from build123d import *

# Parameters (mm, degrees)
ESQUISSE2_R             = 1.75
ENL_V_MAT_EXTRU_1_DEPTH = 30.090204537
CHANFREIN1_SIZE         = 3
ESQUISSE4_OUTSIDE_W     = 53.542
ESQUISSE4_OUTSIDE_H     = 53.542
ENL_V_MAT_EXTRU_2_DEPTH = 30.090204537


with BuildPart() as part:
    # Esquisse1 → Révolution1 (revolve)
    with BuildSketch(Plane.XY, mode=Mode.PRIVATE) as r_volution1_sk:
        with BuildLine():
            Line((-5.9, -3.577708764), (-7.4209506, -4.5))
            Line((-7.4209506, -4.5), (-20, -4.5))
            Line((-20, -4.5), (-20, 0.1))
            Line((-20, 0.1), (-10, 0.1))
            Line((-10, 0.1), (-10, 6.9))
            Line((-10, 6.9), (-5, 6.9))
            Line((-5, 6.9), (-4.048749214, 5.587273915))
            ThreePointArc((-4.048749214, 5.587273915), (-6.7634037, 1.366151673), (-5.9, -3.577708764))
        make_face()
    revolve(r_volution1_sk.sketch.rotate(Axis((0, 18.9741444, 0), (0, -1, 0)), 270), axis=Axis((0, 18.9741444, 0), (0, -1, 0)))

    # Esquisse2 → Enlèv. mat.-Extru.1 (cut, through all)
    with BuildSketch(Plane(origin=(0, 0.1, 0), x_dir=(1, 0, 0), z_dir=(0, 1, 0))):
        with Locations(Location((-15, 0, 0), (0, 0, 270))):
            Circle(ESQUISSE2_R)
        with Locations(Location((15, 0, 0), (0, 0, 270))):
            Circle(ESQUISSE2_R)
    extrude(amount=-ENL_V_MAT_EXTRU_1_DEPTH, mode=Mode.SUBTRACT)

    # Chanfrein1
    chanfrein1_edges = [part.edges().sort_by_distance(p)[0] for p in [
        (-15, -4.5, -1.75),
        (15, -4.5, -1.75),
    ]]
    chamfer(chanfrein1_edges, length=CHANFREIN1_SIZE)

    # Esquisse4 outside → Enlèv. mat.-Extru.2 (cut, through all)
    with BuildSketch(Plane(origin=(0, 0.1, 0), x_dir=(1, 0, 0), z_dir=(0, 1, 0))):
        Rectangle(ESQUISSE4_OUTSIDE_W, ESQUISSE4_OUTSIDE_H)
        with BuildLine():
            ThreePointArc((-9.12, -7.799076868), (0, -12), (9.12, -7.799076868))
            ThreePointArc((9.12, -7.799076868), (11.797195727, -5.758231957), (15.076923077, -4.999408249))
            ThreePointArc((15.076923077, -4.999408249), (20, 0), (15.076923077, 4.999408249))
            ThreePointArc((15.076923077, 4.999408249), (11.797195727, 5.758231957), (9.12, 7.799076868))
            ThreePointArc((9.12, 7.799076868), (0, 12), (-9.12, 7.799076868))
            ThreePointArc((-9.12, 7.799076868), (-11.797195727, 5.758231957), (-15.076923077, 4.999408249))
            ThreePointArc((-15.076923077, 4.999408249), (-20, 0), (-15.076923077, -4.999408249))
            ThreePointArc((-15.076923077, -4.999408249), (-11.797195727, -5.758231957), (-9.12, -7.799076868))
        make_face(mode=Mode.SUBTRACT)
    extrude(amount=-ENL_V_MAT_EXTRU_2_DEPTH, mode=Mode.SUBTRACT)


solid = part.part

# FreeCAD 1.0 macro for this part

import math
import FreeCAD as App
import Part
import Sketcher

V = App.Vector


def edges_at(feature, points):
    """Names of the edges that pass closest to the given points."""
    edges = feature.Shape.Edges
    near = lambda p: min(range(len(edges)), key=lambda i: edges[i].distToShape(Part.Vertex(*p))[0])
    return sorted({f"Edge{near(p) + 1}" for p in points})


def add_polygon(sketch, points):
    """Adds a closed chain of lines whose ends are joined by coincident constraints."""
    first, n = sketch.GeometryCount, len(points)
    for a, b in zip(points, points[1:] + points[:1]):
        sketch.addGeometry(Part.LineSegment(App.Vector(*a, 0), App.Vector(*b, 0)), False)
    for i in range(n):
        sketch.addConstraint(Sketcher.Constraint("Coincident", first + i, 2, first + (i + 1) % n, 1))

doc = App.newDocument("Part")
body = doc.addObject("PartDesign::Body", "Body")

# Sketch on XY plane
sketch1 = body.newObject("Sketcher::SketchObject", "Sketch")
sketch1.AttachmentSupport = (doc.getObject("XY_Plane"), [""])
sketch1.MapMode = "FlatFace"
sketch1.addGeometry([
    Part.LineSegment(V(-7.4, -4.5, 0), V(-5.9, -3.6, 0)),  # 0
    Part.ArcOfCircle(Part.Circle(V(0, 0, 0), V(0, 0, 1), 6.9), math.radians(126), math.radians(211)),  # 1
    Part.LineSegment(V(-4, 5.6, 0), V(-5, 6.9, 0)),  # 2
    Part.LineSegment(V(-5, 6.9, 0), V(-10, 6.9, 0)),  # 3
    Part.LineSegment(V(-10, 6.9, 0), V(-10, 0.1, 0)),  # 4
    Part.LineSegment(V(-10, 0.1, 0), V(-20, 0.1, 0)),  # 5
    Part.LineSegment(V(-20, 0.1, 0), V(-20, -4.5, 0)),  # 6
    Part.LineSegment(V(-20, -4.5, 0), V(-7.4, -4.5, 0)),  # 7
], False)
sketch1.addConstraint([
    Sketcher.Constraint("Coincident", 0, 2, 1, 2),
    Sketcher.Constraint("Coincident", 1, 1, 2, 1),
    Sketcher.Constraint("Coincident", 2, 2, 3, 1),
    Sketcher.Constraint("Coincident", 3, 2, 4, 1),
    Sketcher.Constraint("Coincident", 4, 2, 5, 1),
    Sketcher.Constraint("Coincident", 5, 2, 6, 1),
    Sketcher.Constraint("Coincident", 6, 2, 7, 1),
    Sketcher.Constraint("Coincident", 7, 2, 0, 1),
    Sketcher.Constraint("Horizontal", 3),
    Sketcher.Constraint("Vertical", 4),
    Sketcher.Constraint("Horizontal", 5),
    Sketcher.Constraint("Vertical", 6),
    Sketcher.Constraint("Horizontal", 7),
    Sketcher.Constraint("Coincident", 1, 3, -1, 1),
    Sketcher.Constraint("Radius", 1, 6.9),
    Sketcher.Constraint("DistanceX", 3, 2, 3, 1, 5.0),
    Sketcher.Constraint("DistanceX", 5, 2, 5, 1, 10.0),
    Sketcher.Constraint("DistanceY", 4, 2, 4, 1, 6.8),
    Sketcher.Constraint("DistanceY", 6, 2, 6, 1, 4.6),
    Sketcher.Constraint("DistanceX", 2, 2, -1, 1, 5.0),
    Sketcher.Constraint("DistanceX", 0, 2, -1, 1, 5.9),
    Sketcher.Constraint("DistanceY", -1, 1, 2, 2, 6.9),
    Sketcher.Constraint("DistanceX", 7, 1, 7, 2, 12.579049),
    Sketcher.Constraint("DistanceX", 7, 2, 1, 1, 3.372201),
])
revolution = body.newObject("PartDesign::Revolution", "Revolution")
revolution.Profile = sketch1
revolution.ReferenceAxis = (sketch1, ["V_Axis"])
revolution.Angle = 360

# Sketch on XZ plane
sketch2 = body.newObject("Sketcher::SketchObject", "Sketch001")
sketch2.AttachmentSupport = (doc.getObject("XZ_Plane"), [""])
sketch2.MapMode = "FlatFace"
sketch2.AttachmentOffset = App.Placement(V(0, 0, -0.1), App.Rotation())
sketch2.addGeometry([
    Part.Circle(V(-15, 0, 0), V(0, 0, 1), 1.8),
    Part.Circle(V(15, 0, 0), V(0, 0, 1), 1.8),
], False)
sketch2.addConstraint([
    Sketcher.Constraint("Equal", 0, 1),
    Sketcher.Constraint("Symmetric", 0, 3, 1, 3, -1, 1),
    Sketcher.Constraint("PointOnObject", 0, 3, -1),
    Sketcher.Constraint("Diameter", 0, 3.5),
    Sketcher.Constraint("DistanceX", 0, 3, -1, 1, 15.0),
])
pocket1 = body.newObject("PartDesign::Pocket", "Pocket")
pocket1.Profile = sketch2
pocket1.Type = "ThroughAll"
pocket1.Reversed = True
doc.recompute()

chamfer = body.newObject("PartDesign::Chamfer", "Chamfer")
chamfer.Base = (pocket1, edges_at(pocket1, [(-15, -4.5, -1.75), (15, -4.5, -1.75)]))
chamfer.Size = 3

# Sketch on XZ plane
sketch3 = body.newObject("Sketcher::SketchObject", "Sketch002")
sketch3.AttachmentSupport = (doc.getObject("XZ_Plane"), [""])
sketch3.MapMode = "FlatFace"
sketch3.AttachmentOffset = App.Placement(V(0, 0, -0.1), App.Rotation())
add_polygon(sketch3, [(-27, -27), (-27, 27), (27, 27), (27, -27)])  # lines 0-3
sketch3.addGeometry(Part.ArcOfCircle(Part.Circle(V(0, 0, 0), V(0, 0, 1), 12), math.radians(41), math.radians(139)), False)  # 4
sketch3.addGeometry(Part.ArcOfCircle(Part.Circle(V(-15, 13, 0), V(0, 0, 1), 8), math.radians(-89), math.radians(-41)), False)  # 5
sketch3.addGeometry(Part.ArcOfCircle(Part.Circle(V(-15, 0, 0), V(0, 0, 1), 5), math.radians(91), math.radians(269)), False)  # 6
sketch3.addGeometry(Part.ArcOfCircle(Part.Circle(V(-15, -13, 0), V(0, 0, 1), 8), math.radians(41), math.radians(89)), False)  # 7
sketch3.addGeometry(Part.ArcOfCircle(Part.Circle(V(0, 0, 0), V(0, 0, 1), 12), math.radians(-139), math.radians(-41)), False)  # 8
sketch3.addGeometry(Part.ArcOfCircle(Part.Circle(V(15, -13, 0), V(0, 0, 1), 8), math.radians(91), math.radians(139)), False)  # 9
sketch3.addGeometry(Part.ArcOfCircle(Part.Circle(V(15, 0, 0), V(0, 0, 1), 5), math.radians(-89), math.radians(89)), False)  # 10
sketch3.addGeometry(Part.ArcOfCircle(Part.Circle(V(15, 13, 0), V(0, 0, 1), 8), math.radians(-139), math.radians(-91)), False)  # 11
sketch3.addConstraint([
    Sketcher.Constraint("Tangent", 4, 2, 5, 2),
    Sketcher.Constraint("Tangent", 5, 1, 6, 1),
    Sketcher.Constraint("Tangent", 6, 2, 7, 2),
    Sketcher.Constraint("Tangent", 7, 1, 8, 1),
    Sketcher.Constraint("Tangent", 8, 2, 9, 2),
    Sketcher.Constraint("Tangent", 9, 1, 10, 1),
    Sketcher.Constraint("Tangent", 10, 2, 11, 2),
    Sketcher.Constraint("Tangent", 11, 1, 4, 1),
    Sketcher.Constraint("Vertical", 0),
    Sketcher.Constraint("Horizontal", 1),
    Sketcher.Constraint("Vertical", 2),
    Sketcher.Constraint("Horizontal", 3),
    Sketcher.Constraint("Coincident", 4, 3, -1, 1),
    Sketcher.Constraint("Coincident", 8, 3, -1, 1),
    Sketcher.Constraint("Equal", 5, 7),
    Sketcher.Constraint("Equal", 4, 8),
    Sketcher.Constraint("Equal", 7, 9),
    Sketcher.Constraint("Equal", 6, 10),
    Sketcher.Constraint("Equal", 9, 11),
    Sketcher.Constraint("Symmetric", 6, 3, 10, 3, -1, 1),
    Sketcher.Constraint("Symmetric", 0, 2, 2, 2, -1, 1),
    Sketcher.Constraint("PointOnObject", 6, 3, -1),
    Sketcher.Constraint("Equal", 3, 0),
    Sketcher.Constraint("Radius", 4, 12.0),
    Sketcher.Constraint("Radius", 5, 8.0),
    Sketcher.Constraint("Radius", 6, 5.0),
    Sketcher.Constraint("DistanceX", 6, 3, -1, 1, 15.0),
    Sketcher.Constraint("DistanceX", 1, 1, 1, 2, 53.542),
])
pocket2 = body.newObject("PartDesign::Pocket", "Pocket001")
pocket2.Profile = sketch3
pocket2.Type = "ThroughAll"
pocket2.Reversed = True

doc.recompute()
